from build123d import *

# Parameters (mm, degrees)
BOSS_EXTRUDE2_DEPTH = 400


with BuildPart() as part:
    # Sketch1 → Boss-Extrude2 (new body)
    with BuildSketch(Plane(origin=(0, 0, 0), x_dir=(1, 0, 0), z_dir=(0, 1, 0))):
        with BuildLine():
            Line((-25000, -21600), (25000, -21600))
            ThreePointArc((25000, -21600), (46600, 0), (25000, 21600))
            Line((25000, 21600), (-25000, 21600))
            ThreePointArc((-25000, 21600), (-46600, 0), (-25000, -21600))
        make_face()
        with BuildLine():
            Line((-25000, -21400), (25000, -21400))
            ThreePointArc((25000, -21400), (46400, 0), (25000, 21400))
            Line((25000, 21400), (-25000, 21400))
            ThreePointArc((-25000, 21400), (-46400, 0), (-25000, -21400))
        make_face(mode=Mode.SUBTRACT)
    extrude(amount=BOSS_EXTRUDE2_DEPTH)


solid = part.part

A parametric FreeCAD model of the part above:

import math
import FreeCAD as App
import Part
import Sketcher

doc = App.newDocument("Part")
body = doc.addObject("PartDesign::Body", "Body")

sketch1 = body.newObject("Sketcher::SketchObject", "Sketch")
sketch1.AttachmentSupport = (doc.getObject("XZ_Plane"), [""])
sketch1.MapMode = "FlatFace"
sketch1.addGeometry(Part.LineSegment(App.Vector(-25000, 21600, 0), App.Vector(25000, 21600, 0)), False)
sketch1.addGeometry(Part.ArcOfCircle(Part.Circle(App.Vector(25000, 0, 0), App.Vector(0, 0, 1), 21600), math.radians(-90), math.radians(90)), False)
sketch1.addGeometry(Part.LineSegment(App.Vector(25000, -21600, 0), App.Vector(-25000, -21600, 0)), False)
sketch1.addGeometry(Part.ArcOfCircle(Part.Circle(App.Vector(-25000, 0, 0), App.Vector(0, 0, 1), 21600), math.radians(90), math.radians(270)), False)
sketch1.addGeometry(Part.LineSegment(App.Vector(25000, 21400, 0), App.Vector(-25000, 21400, 0)), False)
sketch1.addGeometry(Part.ArcOfCircle(Part.Circle(App.Vector(-25000, 0, 0), App.Vector(0, 0, 1), 21400), math.radians(90), math.radians(270)), False)
sketch1.addGeometry(Part.LineSegment(App.Vector(-25000, -21400, 0), App.Vector(25000, -21400, 0)), False)
sketch1.addGeometry(Part.ArcOfCircle(Part.Circle(App.Vector(25000, 0, 0), App.Vector(0, 0, 1), 21400), math.radians(-90), math.radians(90)), False)
sketch1.addConstraint(Sketcher.Constraint("Coincident", 0, 2, 1, 2))
sketch1.addConstraint(Sketcher.Constraint("Coincident", 1, 1, 2, 1))
sketch1.addConstraint(Sketcher.Constraint("Coincident", 2, 2, 3, 2))
sketch1.addConstraint(Sketcher.Constraint("Coincident", 3, 1, 0, 1))
sketch1.addConstraint(Sketcher.Constraint("Coincident", 4, 2, 5, 1))
sketch1.addConstraint(Sketcher.Constraint("Coincident", 5, 2, 6, 1))
sketch1.addConstraint(Sketcher.Constraint("Coincident", 6, 2, 7, 1))
sketch1.addConstraint(Sketcher.Constraint("Coincident", 7, 2, 4, 1))
sketch1.addConstraint(Sketcher.Constraint("Horizontal", 0))
sketch1.addConstraint(Sketcher.Constraint("Horizontal", 2))
sketch1.addConstraint(Sketcher.Constraint("Horizontal", 4))
sketch1.addConstraint(Sketcher.Constraint("Horizontal", 6))
sketch1.addConstraint(Sketcher.Constraint("Coincident", 5, 3, 3, 3))
sketch1.addConstraint(Sketcher.Constraint("Symmetric", 1, 3, 3, 3, -1, 1))
sketch1.addConstraint(Sketcher.Constraint("Vertical", 7, 3, 0, 2))
sketch1.addConstraint(Sketcher.Constraint("Vertical", 5, 3, 2, 2))
sketch1.addConstraint(Sketcher.Constraint("Equal", 0, 2))
sketch1.addConstraint(Sketcher.Constraint("Equal", 2, 4))
sketch1.addConstraint(Sketcher.Constraint("Equal", 4, 6))
sketch1.addConstraint(Sketcher.Constraint("Radius", 1, 21600.0))
sketch1.addConstraint(Sketcher.Constraint("Radius", 5, 21400.0))
sketch1.addConstraint(Sketcher.Constraint("DistanceX", 0, 1, 0, 2, 50000.0))
sketch1.addConstraint(Sketcher.Constraint("DistanceX", -1, 1, 1, 3, 25000.0))
sketch1.addConstraint(Sketcher.Constraint("DistanceX", -1, 1, 7, 3, 25000.0))
sketch1.addConstraint(Sketcher.Constraint("DistanceX", 4, 2, -1, 1, 25000.0))
sketch1.addConstraint(Sketcher.Constraint("DistanceX", -1, 1, 6, 2, 25000.0))
pad1 = body.newObject("PartDesign::Pad", "Pad")
pad1.Profile = sketch1
pad1.Length = 400
pad1.Reversed = True

doc.recompute()
